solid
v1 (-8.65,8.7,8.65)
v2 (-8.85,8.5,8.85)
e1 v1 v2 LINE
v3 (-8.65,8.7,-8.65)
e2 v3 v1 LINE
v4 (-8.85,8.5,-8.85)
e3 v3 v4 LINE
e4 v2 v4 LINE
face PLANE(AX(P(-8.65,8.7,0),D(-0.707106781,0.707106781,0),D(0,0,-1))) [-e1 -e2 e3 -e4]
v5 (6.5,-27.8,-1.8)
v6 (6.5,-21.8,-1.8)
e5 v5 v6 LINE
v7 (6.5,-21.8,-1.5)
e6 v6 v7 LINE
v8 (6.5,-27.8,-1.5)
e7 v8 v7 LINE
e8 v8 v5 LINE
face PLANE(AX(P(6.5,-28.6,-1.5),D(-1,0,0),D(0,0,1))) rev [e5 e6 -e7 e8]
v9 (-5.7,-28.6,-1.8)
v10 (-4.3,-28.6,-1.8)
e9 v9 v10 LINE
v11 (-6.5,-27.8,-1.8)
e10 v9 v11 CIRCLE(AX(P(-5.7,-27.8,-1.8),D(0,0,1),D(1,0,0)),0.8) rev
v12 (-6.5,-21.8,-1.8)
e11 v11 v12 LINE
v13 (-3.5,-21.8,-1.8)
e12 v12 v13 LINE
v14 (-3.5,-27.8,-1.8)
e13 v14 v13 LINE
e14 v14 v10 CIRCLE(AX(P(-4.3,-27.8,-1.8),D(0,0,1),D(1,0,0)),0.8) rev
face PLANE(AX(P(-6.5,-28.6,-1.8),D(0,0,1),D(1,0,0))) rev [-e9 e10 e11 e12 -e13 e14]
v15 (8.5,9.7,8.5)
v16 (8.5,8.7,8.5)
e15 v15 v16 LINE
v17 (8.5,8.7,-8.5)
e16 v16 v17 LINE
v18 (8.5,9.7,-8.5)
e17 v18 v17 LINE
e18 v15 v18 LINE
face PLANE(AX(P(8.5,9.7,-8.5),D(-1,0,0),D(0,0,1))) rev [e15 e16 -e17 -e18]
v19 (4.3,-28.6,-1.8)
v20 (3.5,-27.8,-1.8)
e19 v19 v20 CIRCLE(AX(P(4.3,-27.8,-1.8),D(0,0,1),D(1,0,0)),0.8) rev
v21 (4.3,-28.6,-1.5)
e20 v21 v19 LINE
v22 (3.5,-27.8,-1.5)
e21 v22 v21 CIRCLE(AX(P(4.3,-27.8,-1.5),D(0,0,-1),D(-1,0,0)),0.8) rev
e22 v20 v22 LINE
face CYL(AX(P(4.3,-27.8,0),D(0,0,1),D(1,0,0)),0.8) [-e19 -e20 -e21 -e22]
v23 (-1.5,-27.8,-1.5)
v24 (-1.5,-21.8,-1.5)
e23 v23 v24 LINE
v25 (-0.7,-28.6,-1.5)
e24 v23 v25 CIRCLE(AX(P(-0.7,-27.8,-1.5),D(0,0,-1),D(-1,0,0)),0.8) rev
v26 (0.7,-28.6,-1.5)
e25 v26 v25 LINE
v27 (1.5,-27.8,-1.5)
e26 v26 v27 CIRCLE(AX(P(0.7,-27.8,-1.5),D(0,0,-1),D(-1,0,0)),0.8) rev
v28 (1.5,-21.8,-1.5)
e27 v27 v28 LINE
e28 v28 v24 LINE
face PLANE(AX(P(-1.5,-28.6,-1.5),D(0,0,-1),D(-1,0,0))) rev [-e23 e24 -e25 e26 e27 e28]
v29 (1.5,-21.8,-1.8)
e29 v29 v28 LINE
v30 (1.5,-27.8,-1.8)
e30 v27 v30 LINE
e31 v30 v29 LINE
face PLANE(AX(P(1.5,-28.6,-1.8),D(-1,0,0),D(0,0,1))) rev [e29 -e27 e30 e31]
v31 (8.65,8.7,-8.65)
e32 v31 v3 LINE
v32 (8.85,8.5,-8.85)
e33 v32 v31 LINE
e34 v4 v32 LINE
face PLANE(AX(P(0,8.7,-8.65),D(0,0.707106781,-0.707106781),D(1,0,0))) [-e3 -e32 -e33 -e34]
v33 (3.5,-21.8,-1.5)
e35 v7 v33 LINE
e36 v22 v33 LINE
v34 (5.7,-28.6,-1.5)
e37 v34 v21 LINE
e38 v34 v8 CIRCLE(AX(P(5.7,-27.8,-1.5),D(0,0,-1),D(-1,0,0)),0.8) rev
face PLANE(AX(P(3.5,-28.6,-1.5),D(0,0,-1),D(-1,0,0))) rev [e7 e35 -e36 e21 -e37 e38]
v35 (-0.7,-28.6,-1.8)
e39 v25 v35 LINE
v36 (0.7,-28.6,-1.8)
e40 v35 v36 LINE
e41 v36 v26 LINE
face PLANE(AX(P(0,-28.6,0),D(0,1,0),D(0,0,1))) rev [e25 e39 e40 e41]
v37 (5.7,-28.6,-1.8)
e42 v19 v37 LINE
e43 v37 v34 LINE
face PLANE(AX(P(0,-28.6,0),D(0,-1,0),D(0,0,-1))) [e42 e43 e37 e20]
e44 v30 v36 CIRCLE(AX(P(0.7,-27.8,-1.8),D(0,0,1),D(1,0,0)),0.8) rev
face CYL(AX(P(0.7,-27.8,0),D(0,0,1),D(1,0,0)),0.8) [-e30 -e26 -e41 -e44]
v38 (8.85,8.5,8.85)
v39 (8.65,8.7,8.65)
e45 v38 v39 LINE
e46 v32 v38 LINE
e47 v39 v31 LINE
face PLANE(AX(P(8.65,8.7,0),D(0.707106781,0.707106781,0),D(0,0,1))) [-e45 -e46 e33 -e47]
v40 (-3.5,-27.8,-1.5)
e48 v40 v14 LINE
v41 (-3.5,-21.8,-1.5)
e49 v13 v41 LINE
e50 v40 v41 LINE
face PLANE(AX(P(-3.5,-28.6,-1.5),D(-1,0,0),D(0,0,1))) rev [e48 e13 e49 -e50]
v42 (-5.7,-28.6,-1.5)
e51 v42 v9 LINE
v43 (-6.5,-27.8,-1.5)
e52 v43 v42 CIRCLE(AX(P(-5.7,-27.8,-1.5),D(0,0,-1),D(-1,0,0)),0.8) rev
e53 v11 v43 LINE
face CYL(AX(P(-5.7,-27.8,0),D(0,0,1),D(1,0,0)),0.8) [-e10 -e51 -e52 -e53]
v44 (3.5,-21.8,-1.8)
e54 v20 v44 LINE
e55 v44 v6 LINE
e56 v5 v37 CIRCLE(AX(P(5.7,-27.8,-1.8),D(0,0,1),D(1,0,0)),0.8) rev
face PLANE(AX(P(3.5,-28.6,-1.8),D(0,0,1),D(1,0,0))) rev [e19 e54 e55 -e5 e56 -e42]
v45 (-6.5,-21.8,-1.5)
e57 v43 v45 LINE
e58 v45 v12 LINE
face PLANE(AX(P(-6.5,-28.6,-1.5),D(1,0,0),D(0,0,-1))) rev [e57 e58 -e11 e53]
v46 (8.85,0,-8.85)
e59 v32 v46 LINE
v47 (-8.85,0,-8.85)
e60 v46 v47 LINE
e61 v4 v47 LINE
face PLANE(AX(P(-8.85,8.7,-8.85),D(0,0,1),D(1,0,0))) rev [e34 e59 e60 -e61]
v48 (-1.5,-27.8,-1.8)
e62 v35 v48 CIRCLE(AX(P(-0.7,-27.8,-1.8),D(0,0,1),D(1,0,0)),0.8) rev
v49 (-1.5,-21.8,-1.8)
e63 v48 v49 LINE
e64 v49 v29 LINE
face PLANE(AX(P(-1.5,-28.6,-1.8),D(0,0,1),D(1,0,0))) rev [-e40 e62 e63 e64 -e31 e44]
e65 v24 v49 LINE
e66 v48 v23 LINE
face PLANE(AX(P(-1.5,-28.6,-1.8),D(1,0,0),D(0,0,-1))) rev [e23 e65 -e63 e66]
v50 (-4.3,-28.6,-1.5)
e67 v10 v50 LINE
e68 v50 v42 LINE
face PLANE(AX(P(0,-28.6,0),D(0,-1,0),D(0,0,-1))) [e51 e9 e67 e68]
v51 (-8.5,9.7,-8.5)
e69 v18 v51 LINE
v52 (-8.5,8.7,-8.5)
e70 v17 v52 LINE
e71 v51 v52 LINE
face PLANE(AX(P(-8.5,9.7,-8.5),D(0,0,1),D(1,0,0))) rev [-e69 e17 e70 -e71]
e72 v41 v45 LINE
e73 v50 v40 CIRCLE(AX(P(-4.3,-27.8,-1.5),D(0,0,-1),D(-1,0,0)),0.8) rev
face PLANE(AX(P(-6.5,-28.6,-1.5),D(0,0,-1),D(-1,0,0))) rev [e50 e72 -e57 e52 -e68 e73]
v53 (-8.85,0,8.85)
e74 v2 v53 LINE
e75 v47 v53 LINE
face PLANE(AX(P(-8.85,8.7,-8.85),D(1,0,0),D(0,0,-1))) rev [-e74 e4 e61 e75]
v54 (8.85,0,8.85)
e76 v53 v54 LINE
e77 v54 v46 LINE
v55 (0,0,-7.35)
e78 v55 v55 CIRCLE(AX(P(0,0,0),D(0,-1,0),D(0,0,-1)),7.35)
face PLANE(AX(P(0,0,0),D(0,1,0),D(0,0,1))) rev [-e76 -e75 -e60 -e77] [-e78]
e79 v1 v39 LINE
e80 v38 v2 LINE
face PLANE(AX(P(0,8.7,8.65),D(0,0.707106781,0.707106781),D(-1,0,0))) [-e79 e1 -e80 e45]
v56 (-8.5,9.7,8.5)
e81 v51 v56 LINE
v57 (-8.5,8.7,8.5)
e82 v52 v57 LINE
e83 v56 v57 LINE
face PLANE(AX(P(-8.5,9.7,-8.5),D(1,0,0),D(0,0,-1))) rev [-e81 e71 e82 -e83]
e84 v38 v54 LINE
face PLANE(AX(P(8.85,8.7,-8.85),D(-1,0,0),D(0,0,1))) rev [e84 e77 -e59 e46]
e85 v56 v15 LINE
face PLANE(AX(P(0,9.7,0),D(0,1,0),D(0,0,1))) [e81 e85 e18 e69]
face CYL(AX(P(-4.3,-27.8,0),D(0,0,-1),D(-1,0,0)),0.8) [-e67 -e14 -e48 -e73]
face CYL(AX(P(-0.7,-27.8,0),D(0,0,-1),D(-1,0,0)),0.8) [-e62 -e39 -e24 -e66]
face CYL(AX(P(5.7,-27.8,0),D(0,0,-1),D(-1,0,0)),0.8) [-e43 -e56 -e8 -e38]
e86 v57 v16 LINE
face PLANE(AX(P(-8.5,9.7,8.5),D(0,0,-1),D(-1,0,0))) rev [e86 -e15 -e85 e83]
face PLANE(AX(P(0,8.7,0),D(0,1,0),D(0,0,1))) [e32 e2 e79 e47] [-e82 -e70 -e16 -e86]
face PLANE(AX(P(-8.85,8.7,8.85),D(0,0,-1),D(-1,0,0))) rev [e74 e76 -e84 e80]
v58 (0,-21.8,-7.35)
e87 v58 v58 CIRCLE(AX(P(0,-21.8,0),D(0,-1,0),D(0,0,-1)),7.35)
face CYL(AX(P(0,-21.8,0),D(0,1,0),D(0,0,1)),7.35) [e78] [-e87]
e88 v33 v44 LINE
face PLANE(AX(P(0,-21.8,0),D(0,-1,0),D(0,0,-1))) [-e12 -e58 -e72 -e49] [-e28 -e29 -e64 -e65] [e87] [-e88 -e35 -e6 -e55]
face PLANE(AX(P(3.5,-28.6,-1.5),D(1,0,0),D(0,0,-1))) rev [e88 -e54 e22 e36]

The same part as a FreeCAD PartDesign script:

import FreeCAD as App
import Part
import Sketcher

V = App.Vector


def edges_at(feature, points):
    """Names of the edges that pass closest to the given points."""
    edges = feature.Shape.Edges
    near = lambda p: min(range(len(edges)), key=lambda i: edges[i].distToShape(Part.Vertex(*p))[0])
    return sorted({f"Edge{near(p) + 1}" for p in points})

doc = App.newDocument("Part")
body = doc.addObject("PartDesign::Body", "Body")

sketch1 = body.newObject("Sketcher::SketchObject", "Sketch")
sketch1.AttachmentSupport = (doc.getObject("XZ_Plane"), [""])
sketch1.MapMode = "FlatFace"
sketch1.addGeometry([
    Part.LineSegment(V(-9, -9, 0), V(-9, 9, 0)),
    Part.LineSegment(V(-9, 9, 0), V(9, 9, 0)),
    Part.LineSegment(V(9, 9, 0), V(9, -9, 0)),
    Part.LineSegment(V(9, -9, 0), V(-9, -9, 0)),
], False)
sketch1.addConstraint([
    Sketcher.Constraint("Coincident", 0, 2, 1, 1),
    Sketcher.Constraint("Coincident", 1, 2, 2, 1),
    Sketcher.Constraint("Coincident", 2, 2, 3, 1),
    Sketcher.Constraint("Coincident", 3, 2, 0, 1),
    Sketcher.Constraint("Vertical", 0),
    Sketcher.Constraint("Horizontal", 1),
    Sketcher.Constraint("Vertical", 2),
    Sketcher.Constraint("Horizontal", 3),
    Sketcher.Constraint("Symmetric", 0, 2, 2, 2, -1, 1),
    Sketcher.Constraint("Equal", 3, 0),
    Sketcher.Constraint("DistanceX", 1, 1, 1, 2, 17.7),
])
pad1 = body.newObject("PartDesign::Pad", "Pad")
pad1.Profile = sketch1
pad1.Length = 8.7
pad1.Reversed = True

sketch2 = body.newObject("Sketcher::SketchObject", "Sketch001")
sketch2.AttachmentSupport = (doc.getObject("XZ_Plane"), [""])
sketch2.MapMode = "FlatFace"
sketch2.addGeometry(Part.Circle(V(0, 0, 0), V(0, 0, 1), 7), False)
sketch2.addConstraint([
    Sketcher.Constraint("Coincident", 0, 3, -1, 1),
    Sketcher.Constraint("Diameter", 0, 14.7),
])
pad2 = body.newObject("PartDesign::Pad", "Pad001")
pad2.Profile = sketch2
pad2.Length = 21.8

sketch3 = body.newObject("Sketcher::SketchObject", "Sketch002")
sketch3.AttachmentSupport = (doc.getObject("XZ_Plane"), [""])
sketch3.MapMode = "FlatFace"
sketch3.AttachmentOffset = App.Placement(V(0, 0, 21.8), App.Rotation())
sketch3.addGeometry([
    Part.LineSegment(V(-6.5, -1.5, 0), V(-6.5, -1.8, 0)),
    Part.LineSegment(V(-6.5, -1.8, 0), V(-3.5, -1.8, 0)),
    Part.LineSegment(V(-3.5, -1.8, 0), V(-3.5, -1.5, 0)),
    Part.LineSegment(V(-3.5, -1.5, 0), V(-6.5, -1.5, 0)),
    Part.LineSegment(V(-1.5, -1.5, 0), V(-1.5, -1.8, 0)),
    Part.LineSegment(V(-1.5, -1.8, 0), V(1.5, -1.8, 0)),
    Part.LineSegment(V(1.5, -1.8, 0), V(1.5, -1.5, 0)),
    Part.LineSegment(V(1.5, -1.5, 0), V(-1.5, -1.5, 0)),
    Part.LineSegment(V(3.5, -1.5, 0), V(3.5, -1.8, 0)),
    Part.LineSegment(V(3.5, -1.8, 0), V(6.5, -1.8, 0)),
    Part.LineSegment(V(6.5, -1.8, 0), V(6.5, -1.5, 0)),
    Part.LineSegment(V(6.5, -1.5, 0), V(3.5, -1.5, 0)),
], False)
sketch3.addConstraint([
    Sketcher.Constraint("Coincident", 0, 2, 1, 1),
    Sketcher.Constraint("Coincident", 1, 2, 2, 1),
    Sketcher.Constraint("Coincident", 2, 2, 3, 1),
    Sketcher.Constraint("Coincident", 3, 2, 0, 1),
    Sketcher.Constraint("Coincident", 4, 2, 5, 1),
    Sketcher.Constraint("Coincident", 5, 2, 6, 1),
    Sketcher.Constraint("Coincident", 6, 2, 7, 1),
    Sketcher.Constraint("Coincident", 7, 2, 4, 1),
    Sketcher.Constraint("Coincident", 8, 2, 9, 1),
    Sketcher.Constraint("Coincident", 9, 2, 10, 1),
    Sketcher.Constraint("Coincident", 10, 2, 11, 1),
    Sketcher.Constraint("Coincident", 11, 2, 8, 1),
    Sketcher.Constraint("Vertical", 0),
    Sketcher.Constraint("Horizontal", 1),
    Sketcher.Constraint("Vertical", 2),
    Sketcher.Constraint("Horizontal", 3),
    Sketcher.Constraint("Vertical", 4),
    Sketcher.Constraint("Horizontal", 5),
    Sketcher.Constraint("Vertical", 6),
    Sketcher.Constraint("Horizontal", 7),
    Sketcher.Constraint("Vertical", 8),
    Sketcher.Constraint("Horizontal", 9),
    Sketcher.Constraint("Vertical", 10),
    Sketcher.Constraint("Horizontal", 11),
    Sketcher.Constraint("Symmetric", 1, 2, 8, 2, -2),
    Sketcher.Constraint("Symmetric", 3, 2, 10, 2, -2),
    Sketcher.Constraint("Horizontal", 1, 2, 4, 2),
    Sketcher.Constraint("Horizontal", 3, 2, 6, 2),
    Sketcher.Constraint("Equal", 3, 5),
    Sketcher.Constraint("DistanceX", 1, 1, 1, 2, 3.0),
    Sketcher.Constraint("DistanceY", 0, 2, 0, 1, 0.3),
    Sketcher.Constraint("DistanceX", 1, 2, 4, 2, 2.0),
    Sketcher.Constraint("DistanceX", 5, 2, 8, 2, 2.0),
    Sketcher.Constraint("DistanceY", 0, 2, -1, 1, 1.8),
])
pad3 = body.newObject("PartDesign::Pad", "Pad002")
pad3.Profile = sketch3
pad3.Length = 6.8
doc.recompute()

fillet = body.newObject("PartDesign::Fillet", "Fillet")
fillet.Base = (pad3, edges_at(pad3, [
    (-6.5, -28.6, -1.65),
    (-3.5, -28.6, -1.65),
    (-1.5, -28.6, -1.65),
    (1.5, -28.6, -1.65),
    (3.5, -28.6, -1.65),
    (6.5, -28.6, -1.65),
]))
fillet.Radius = 0.8

sketch4 = body.newObject("Sketcher::SketchObject", "Sketch003")
sketch4.AttachmentSupport = (doc.getObject("XZ_Plane"), [""])
sketch4.MapMode = "FlatFace"
sketch4.AttachmentOffset = App.Placement(V(0, 0, -8.7), App.Rotation())
sketch4.addGeometry([
    Part.LineSegment(V(-8, -8, 0), V(-8, 8, 0)),
    Part.LineSegment(V(-8, 8, 0), V(8, 8, 0)),
    Part.LineSegment(V(8, 8, 0), V(8, -8, 0)),
    Part.LineSegment(V(8, -8, 0), V(-8, -8, 0)),
], False)
sketch4.addConstraint([
    Sketcher.Constraint("Coincident", 0, 2, 1, 1),
    Sketcher.Constraint("Coincident", 1, 2, 2, 1),
    Sketcher.Constraint("Coincident", 2, 2, 3, 1),
    Sketcher.Constraint("Coincident", 3, 2, 0, 1),
    Sketcher.Constraint("Vertical", 0),
    Sketcher.Constraint("Horizontal", 1),
    Sketcher.Constraint("Vertical", 2),
    Sketcher.Constraint("Horizontal", 3),
    Sketcher.Constraint("Symmetric", 0, 2, 2, 2, -1, 1),
    Sketcher.Constraint("Equal", 3, 0),
    Sketcher.Constraint("DistanceX", 1, 1, 1, 2, 17.0),
])
pad4 = body.newObject("PartDesign::Pad", "Pad003")
pad4.Profile = sketch4
pad4.Length = 1
pad4.Reversed = True
doc.recompute()

chamfer = body.newObject("PartDesign::Chamfer", "Chamfer")
chamfer.Base = (pad4, edges_at(pad4, [
    (-8.85, 8.7, 0),
    (0, 8.7, 8.85),
    (8.85, 8.7, 0),
    (0, 8.7, -8.85),
]))
chamfer.Size = 0.2

doc.recompute()
